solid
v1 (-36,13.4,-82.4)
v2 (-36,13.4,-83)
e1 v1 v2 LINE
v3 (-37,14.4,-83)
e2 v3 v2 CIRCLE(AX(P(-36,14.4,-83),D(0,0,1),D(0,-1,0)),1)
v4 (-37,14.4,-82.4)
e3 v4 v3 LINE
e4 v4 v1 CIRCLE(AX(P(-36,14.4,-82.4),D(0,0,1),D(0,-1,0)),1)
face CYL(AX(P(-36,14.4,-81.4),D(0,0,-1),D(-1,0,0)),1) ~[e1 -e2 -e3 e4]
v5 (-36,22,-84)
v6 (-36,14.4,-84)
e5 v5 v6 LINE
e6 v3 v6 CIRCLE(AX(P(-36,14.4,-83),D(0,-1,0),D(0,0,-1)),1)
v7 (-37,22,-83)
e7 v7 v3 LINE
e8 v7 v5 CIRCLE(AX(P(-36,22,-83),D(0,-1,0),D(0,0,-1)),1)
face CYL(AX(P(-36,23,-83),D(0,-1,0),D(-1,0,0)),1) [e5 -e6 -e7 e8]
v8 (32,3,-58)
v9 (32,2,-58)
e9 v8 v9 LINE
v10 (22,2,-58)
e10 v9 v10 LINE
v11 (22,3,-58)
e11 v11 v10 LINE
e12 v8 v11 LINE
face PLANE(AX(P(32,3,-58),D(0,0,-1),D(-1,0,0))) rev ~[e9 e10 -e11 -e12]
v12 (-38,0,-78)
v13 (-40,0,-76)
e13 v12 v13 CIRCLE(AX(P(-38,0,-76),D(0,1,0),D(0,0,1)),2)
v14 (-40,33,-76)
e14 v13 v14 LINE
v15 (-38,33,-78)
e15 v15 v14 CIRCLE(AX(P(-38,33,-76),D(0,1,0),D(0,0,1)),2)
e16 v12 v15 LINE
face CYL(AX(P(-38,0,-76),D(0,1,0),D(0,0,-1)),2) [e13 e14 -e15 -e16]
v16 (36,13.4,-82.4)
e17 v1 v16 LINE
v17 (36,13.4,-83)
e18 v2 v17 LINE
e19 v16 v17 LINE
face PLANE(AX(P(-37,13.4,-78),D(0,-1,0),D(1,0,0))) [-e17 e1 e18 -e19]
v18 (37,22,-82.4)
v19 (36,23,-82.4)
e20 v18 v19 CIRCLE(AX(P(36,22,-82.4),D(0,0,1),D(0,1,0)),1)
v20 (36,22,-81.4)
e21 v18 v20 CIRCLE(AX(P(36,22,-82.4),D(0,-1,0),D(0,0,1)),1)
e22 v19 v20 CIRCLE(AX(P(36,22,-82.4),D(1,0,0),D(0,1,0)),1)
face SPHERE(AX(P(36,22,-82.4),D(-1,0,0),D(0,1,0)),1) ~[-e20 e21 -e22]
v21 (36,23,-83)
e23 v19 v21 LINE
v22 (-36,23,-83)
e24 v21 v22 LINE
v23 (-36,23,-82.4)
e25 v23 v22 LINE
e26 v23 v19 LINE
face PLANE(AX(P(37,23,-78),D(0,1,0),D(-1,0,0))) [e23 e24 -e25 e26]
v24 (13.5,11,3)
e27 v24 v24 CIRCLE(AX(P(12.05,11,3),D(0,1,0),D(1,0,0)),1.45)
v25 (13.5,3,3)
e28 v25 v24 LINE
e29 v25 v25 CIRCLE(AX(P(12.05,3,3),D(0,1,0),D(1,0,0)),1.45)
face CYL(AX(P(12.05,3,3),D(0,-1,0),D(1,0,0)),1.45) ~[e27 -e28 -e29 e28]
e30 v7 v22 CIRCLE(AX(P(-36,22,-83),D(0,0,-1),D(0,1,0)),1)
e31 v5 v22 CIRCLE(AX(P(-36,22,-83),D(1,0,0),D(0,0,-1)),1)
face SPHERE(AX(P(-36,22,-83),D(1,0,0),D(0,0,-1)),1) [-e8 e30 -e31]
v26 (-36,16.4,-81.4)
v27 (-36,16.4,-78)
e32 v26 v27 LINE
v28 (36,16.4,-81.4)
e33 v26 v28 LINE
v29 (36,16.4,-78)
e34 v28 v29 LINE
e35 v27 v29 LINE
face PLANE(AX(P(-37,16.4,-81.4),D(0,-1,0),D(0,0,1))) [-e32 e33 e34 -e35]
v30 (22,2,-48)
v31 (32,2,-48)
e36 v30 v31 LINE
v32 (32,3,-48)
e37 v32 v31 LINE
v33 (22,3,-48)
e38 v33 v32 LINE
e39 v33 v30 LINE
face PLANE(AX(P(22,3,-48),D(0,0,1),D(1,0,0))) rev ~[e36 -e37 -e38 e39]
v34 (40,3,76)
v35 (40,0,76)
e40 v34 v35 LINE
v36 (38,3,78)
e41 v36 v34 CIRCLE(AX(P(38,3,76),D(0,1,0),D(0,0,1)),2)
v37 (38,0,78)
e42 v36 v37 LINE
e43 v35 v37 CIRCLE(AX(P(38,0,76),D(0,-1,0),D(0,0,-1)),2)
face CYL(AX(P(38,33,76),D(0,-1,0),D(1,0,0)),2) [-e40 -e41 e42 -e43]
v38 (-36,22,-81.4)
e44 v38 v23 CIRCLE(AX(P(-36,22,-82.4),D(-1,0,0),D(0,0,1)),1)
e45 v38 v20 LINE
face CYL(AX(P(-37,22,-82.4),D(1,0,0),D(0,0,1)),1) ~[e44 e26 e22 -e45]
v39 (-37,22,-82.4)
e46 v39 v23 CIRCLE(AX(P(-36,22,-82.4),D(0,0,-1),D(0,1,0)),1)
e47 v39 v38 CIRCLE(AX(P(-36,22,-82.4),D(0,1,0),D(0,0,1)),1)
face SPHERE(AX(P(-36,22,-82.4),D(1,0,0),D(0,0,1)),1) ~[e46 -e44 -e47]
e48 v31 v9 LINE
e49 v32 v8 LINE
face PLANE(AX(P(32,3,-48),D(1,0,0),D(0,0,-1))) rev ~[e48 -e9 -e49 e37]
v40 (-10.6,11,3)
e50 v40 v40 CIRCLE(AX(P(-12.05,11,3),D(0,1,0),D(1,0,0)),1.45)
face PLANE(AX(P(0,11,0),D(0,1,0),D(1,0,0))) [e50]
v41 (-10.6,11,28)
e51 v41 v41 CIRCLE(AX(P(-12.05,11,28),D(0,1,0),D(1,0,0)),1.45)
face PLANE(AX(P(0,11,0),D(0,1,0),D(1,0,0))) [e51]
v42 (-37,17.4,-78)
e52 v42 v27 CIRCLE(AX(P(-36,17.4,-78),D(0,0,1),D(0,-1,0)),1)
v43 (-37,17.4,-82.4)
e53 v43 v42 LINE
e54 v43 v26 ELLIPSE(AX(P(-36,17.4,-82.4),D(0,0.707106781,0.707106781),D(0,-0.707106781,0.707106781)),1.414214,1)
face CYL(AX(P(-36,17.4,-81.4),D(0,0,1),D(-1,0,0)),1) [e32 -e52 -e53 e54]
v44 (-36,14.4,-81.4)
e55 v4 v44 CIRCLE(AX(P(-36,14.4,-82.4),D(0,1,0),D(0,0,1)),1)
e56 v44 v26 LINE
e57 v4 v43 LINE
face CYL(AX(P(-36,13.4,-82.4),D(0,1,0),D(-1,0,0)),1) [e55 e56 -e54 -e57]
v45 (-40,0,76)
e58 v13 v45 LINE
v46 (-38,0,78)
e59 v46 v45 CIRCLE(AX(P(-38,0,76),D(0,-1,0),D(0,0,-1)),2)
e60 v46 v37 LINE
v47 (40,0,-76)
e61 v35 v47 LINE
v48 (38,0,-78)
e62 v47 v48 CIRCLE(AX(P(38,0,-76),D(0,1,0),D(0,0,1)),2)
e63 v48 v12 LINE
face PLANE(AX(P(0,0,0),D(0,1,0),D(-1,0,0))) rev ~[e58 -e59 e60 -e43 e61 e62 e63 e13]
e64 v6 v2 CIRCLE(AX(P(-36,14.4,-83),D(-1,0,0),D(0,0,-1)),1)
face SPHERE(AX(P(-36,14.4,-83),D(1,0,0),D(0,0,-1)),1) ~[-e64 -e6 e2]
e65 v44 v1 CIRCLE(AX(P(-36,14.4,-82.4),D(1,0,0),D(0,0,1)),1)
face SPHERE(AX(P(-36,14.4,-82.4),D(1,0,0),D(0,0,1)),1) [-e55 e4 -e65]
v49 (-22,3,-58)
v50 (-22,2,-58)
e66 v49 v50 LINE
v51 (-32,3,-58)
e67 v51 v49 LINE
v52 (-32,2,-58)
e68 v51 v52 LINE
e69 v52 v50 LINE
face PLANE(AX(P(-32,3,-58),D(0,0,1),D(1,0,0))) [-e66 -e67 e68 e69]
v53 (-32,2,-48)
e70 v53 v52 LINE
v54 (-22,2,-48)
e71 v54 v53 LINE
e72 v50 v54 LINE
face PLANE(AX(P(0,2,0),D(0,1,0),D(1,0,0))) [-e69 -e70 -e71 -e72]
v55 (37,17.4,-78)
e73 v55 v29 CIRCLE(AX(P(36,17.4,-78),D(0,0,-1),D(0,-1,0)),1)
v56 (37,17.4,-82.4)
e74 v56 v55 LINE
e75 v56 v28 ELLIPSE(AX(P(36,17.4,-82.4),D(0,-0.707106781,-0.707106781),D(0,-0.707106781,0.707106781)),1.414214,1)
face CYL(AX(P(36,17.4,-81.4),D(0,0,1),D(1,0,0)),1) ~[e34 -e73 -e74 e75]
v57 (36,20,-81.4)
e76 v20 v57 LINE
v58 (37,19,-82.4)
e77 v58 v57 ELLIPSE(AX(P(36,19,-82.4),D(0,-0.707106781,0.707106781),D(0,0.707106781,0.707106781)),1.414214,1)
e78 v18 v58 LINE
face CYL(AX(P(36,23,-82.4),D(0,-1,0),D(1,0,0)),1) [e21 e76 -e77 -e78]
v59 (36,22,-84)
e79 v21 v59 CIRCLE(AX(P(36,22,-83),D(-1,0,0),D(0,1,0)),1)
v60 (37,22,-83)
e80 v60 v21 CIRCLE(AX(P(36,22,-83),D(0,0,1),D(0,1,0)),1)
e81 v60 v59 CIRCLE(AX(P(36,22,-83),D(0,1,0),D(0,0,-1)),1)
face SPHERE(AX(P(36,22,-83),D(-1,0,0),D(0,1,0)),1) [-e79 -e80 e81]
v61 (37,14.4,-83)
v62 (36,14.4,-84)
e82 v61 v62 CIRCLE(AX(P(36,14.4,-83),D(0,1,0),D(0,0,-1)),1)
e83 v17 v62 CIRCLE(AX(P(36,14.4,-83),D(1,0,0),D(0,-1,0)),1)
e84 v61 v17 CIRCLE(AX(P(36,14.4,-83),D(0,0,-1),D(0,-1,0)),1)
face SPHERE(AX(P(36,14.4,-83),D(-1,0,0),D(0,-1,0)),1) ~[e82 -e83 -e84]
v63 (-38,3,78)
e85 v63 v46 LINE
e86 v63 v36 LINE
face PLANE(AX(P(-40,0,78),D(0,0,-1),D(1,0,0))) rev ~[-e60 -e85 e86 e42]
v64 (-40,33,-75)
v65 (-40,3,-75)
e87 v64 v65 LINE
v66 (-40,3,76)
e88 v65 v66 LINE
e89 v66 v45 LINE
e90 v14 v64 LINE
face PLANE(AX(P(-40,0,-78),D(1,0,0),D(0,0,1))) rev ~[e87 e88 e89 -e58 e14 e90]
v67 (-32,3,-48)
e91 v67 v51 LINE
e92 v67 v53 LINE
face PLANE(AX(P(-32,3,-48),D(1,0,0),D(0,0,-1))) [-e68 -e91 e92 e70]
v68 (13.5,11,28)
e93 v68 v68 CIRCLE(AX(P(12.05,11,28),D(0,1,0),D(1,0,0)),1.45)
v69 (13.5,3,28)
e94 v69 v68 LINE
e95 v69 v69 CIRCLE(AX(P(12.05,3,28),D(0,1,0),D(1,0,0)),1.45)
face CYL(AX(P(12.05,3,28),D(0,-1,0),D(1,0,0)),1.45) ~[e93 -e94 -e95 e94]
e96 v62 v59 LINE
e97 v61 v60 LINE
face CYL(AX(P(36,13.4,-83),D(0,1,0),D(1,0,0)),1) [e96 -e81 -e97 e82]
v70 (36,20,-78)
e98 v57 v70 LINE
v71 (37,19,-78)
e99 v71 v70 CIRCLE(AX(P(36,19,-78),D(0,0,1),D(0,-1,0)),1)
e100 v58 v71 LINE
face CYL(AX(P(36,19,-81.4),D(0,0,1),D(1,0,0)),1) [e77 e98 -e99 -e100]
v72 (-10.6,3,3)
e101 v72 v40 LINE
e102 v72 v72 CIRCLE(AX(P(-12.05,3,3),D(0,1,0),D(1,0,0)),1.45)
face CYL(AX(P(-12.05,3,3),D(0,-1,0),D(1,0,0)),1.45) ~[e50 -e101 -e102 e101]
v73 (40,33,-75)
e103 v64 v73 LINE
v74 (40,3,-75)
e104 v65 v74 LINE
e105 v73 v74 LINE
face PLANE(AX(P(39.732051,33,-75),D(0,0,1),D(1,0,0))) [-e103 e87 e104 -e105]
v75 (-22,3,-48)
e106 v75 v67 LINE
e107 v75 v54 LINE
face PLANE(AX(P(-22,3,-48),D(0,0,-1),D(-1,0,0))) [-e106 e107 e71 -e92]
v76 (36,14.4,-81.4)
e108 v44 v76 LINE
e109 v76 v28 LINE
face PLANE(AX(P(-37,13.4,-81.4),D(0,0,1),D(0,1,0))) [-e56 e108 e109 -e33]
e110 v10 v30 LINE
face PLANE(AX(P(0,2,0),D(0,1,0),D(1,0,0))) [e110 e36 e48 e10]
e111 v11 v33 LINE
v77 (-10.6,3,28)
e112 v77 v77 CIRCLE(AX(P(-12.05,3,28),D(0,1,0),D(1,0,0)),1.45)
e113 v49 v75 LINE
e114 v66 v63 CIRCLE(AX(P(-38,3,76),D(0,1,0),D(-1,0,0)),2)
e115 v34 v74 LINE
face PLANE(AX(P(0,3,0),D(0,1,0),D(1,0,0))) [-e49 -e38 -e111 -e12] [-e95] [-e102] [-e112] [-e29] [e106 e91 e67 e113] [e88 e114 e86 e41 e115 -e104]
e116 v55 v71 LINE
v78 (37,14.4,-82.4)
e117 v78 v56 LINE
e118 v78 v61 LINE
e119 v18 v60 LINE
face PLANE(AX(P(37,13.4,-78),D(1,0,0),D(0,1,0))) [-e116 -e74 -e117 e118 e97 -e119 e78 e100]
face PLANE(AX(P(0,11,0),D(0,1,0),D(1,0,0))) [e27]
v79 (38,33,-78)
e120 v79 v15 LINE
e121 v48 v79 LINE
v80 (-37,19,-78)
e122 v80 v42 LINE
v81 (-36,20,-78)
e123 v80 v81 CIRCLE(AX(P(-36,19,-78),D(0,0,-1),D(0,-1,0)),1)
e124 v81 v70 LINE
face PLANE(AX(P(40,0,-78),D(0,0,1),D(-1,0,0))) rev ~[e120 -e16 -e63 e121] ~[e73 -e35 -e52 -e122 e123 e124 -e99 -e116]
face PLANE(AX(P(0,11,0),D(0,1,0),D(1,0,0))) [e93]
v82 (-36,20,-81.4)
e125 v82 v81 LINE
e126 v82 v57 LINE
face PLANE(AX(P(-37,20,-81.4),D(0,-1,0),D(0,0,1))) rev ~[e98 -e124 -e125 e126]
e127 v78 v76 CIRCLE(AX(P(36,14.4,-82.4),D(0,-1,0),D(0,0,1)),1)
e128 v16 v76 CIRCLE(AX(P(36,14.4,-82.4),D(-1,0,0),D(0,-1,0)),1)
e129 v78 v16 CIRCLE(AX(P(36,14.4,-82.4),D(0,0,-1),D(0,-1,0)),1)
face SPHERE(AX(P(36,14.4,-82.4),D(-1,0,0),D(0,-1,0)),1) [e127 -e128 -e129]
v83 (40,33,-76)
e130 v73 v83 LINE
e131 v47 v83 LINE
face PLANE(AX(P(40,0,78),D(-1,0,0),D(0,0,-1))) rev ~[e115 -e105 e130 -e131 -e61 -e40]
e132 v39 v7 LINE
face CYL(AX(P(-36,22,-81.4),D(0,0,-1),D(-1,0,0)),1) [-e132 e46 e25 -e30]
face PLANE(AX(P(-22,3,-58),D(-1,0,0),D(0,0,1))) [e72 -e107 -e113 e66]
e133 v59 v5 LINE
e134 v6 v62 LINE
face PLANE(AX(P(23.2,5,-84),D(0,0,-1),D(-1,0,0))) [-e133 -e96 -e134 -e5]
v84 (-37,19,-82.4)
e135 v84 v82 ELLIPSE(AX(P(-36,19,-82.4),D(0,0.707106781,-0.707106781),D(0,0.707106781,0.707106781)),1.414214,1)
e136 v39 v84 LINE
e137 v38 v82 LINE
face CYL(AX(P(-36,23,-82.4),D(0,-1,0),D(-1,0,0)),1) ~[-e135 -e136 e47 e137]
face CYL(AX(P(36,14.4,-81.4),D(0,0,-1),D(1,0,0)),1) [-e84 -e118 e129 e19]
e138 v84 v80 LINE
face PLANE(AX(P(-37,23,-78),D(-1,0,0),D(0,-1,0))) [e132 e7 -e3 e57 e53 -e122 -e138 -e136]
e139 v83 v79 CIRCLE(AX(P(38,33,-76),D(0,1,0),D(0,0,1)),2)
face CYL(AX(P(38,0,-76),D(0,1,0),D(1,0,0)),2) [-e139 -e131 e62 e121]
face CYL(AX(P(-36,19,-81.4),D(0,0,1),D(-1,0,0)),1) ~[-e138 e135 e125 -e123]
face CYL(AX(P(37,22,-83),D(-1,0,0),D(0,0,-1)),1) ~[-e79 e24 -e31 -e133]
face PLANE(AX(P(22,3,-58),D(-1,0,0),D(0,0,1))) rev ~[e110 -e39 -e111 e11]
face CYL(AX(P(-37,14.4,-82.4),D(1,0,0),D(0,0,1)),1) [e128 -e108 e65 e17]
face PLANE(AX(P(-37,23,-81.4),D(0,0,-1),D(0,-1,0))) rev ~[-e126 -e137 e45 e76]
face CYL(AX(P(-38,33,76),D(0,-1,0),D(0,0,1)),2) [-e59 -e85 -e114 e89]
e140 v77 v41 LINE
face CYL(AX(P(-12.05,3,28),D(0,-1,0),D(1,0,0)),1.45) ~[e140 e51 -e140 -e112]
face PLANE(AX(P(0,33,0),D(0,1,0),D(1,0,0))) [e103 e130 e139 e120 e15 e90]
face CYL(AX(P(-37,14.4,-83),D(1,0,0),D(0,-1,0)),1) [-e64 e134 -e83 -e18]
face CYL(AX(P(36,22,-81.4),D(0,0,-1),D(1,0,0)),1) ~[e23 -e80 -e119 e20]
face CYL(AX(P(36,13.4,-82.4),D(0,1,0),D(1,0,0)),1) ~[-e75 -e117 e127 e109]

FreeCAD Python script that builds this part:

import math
import FreeCAD as App
import Part
import Sketcher

V = App.Vector


def edges_at(feature, points):
    """Names of the edges that pass closest to the given points."""
    edges = feature.Shape.Edges
    near = lambda p: min(range(len(edges)), key=lambda i: edges[i].distToShape(Part.Vertex(*p))[0])
    return sorted({f"Edge{near(p) + 1}" for p in points})


def add_polygon(sketch, points):
    """Adds a closed chain of lines whose ends are joined by coincident constraints."""
    first, n = sketch.GeometryCount, len(points)
    for a, b in zip(points, points[1:] + points[:1]):
        sketch.addGeometry(Part.LineSegment(App.Vector(*a, 0), App.Vector(*b, 0)), False)
    for i in range(n):
        sketch.addConstraint(Sketcher.Constraint("Coincident", first + i, 2, first + (i + 1) % n, 1))

doc = App.newDocument("Part")
body = doc.addObject("PartDesign::Body", "Body")

# Sketch on XZ plane
sketch1 = body.newObject("Sketcher::SketchObject", "Sketch")
sketch1.AttachmentSupport = (doc.getObject("XZ_Plane"), [""])
sketch1.MapMode = "FlatFace"
add_polygon(sketch1, [(40, 78), (40, -78), (-40, -78), (-40, 78)])  # lines 0-3
sketch1.addConstraint([
    Sketcher.Constraint("Vertical", 0),
    Sketcher.Constraint("Horizontal", 1),
    Sketcher.Constraint("Vertical", 2),
    Sketcher.Constraint("Horizontal", 3),
    Sketcher.Constraint("Symmetric", 0, 2, 2, 2, -1, 1),
    Sketcher.Constraint("DistanceX", 1, 2, 1, 1, 80.0),
    Sketcher.Constraint("DistanceY", 0, 2, 0, 1, 156.0),
])
pad1 = body.newObject("PartDesign::Pad", "Pad")
pad1.Profile = sketch1
pad1.Length = 3
pad1.Reversed = True

# Sketch on XZ plane
sketch2 = body.newObject("Sketcher::SketchObject", "Sketch001")
sketch2.AttachmentSupport = (doc.getObject("XZ_Plane"), [""])
sketch2.MapMode = "FlatFace"
sketch2.AttachmentOffset = App.Placement(V(0, 0, -3), App.Rotation())
add_polygon(sketch2, [(40, -78), (-40, -78), (-40, 78), (40, 78)])  # lines 0-3
add_polygon(sketch2, [(-37, -75), (37, -75), (37, 75), (-37, 75)])  # lines 4-7
sketch2.addConstraint([
    Sketcher.Constraint("Horizontal", 0),
    Sketcher.Constraint("Vertical", 1),
    Sketcher.Constraint("Horizontal", 2),
    Sketcher.Constraint("Vertical", 3),
    Sketcher.Constraint("Horizontal", 4),
    Sketcher.Constraint("Vertical", 5),
    Sketcher.Constraint("Horizontal", 6),
    Sketcher.Constraint("Vertical", 7),
    Sketcher.Constraint("Symmetric", 0, 2, 2, 2, -1, 1),
    Sketcher.Constraint("Symmetric", 4, 2, 6, 2, -1, 1),
    Sketcher.Constraint("DistanceX", 4, 2, 3, 2, 3.0),
    Sketcher.Constraint("DistanceY", 3, 2, 4, 2, 3.0),
    Sketcher.Constraint("DistanceX", 0, 2, 0, 1, 80.0),
    Sketcher.Constraint("DistanceY", 1, 1, 1, 2, 156.0),
])
pad2 = body.newObject("PartDesign::Pad", "Pad001")
pad2.Profile = sketch2
pad2.Length = 30
pad2.Reversed = True
doc.recompute()

fillet = body.newObject("PartDesign::Fillet", "Fillet")
fillet.Base = (pad2, edges_at(pad2, [
    (40, 16.5, 78),
    (40, 16.5, -78),
    (-40, 16.5, 78),
    (-40, 16.5, -78),
]))
fillet.Radius = 2

# Sketch on XY plane
sketch3 = body.newObject("Sketcher::SketchObject", "Sketch002")
sketch3.AttachmentSupport = (doc.getObject("XY_Plane"), [""])
sketch3.MapMode = "FlatFace"
sketch3.AttachmentOffset = App.Placement(V(0, 0, -78), App.Rotation())
add_polygon(sketch3, [(-37, 23), (37, 23), (37, 13), (-37, 13)])  # lines 0-3
sketch3.addConstraint([
    Sketcher.Constraint("Horizontal", 0),
    Sketcher.Constraint("Vertical", 1),
    Sketcher.Constraint("Horizontal", 2),
    Sketcher.Constraint("Vertical", 3),
    Sketcher.Constraint("DistanceY", 1, 2, 1, 1, 9.6),
    Sketcher.Constraint("DistanceY", -1, 1, 0, 2, 23.0),
    Sketcher.Constraint("DistanceX", 0, 1, 0, 2, 74.0),
    Sketcher.Constraint("DistanceX", -1, 1, 0, 2, 37.0),
])
pad3 = body.newObject("PartDesign::Pad", "Pad002")
pad3.Profile = sketch3
pad3.Length = 6
pad3.Reversed = True

# Sketch on YZ plane
sketch4 = body.newObject("Sketcher::SketchObject", "Sketch003")
sketch4.AttachmentSupport = (doc.getObject("YZ_Plane"), [""])
sketch4.MapMode = "FlatFace"
sketch4.AttachmentOffset = App.Placement(V(0, 0, -37), App.Rotation())
add_polygon(sketch4, [(20, -78), (23, -78), (23, -81.4), (20, -81.4)])  # lines 0-3
add_polygon(sketch4, [(13.4, -78), (16.4, -78), (16.4, -81.4), (13.4, -81.4)])  # lines 4-7
sketch4.addConstraint([
    Sketcher.Constraint("Horizontal", 0),
    Sketcher.Constraint("Vertical", 1),
    Sketcher.Constraint("Horizontal", 2),
    Sketcher.Constraint("Vertical", 3),
    Sketcher.Constraint("Horizontal", 4),
    Sketcher.Constraint("Vertical", 5),
    Sketcher.Constraint("Horizontal", 6),
    Sketcher.Constraint("Vertical", 7),
    Sketcher.Constraint("Horizontal", 3, 2, 4, 2),
    Sketcher.Constraint("Horizontal", 2, 2, 5, 2),
    Sketcher.Constraint("Equal", 2, 4),
    Sketcher.Constraint("DistanceX", 0, 1, 0, 2, 3.0),
    Sketcher.Constraint("DistanceY", 1, 2, 1, 1, 3.4),
    Sketcher.Constraint("DistanceX", -1, 1, 0, 2, 23.0),
    Sketcher.Constraint("DistanceY", 0, 2, -1, 1, 78.0),
    Sketcher.Constraint("DistanceX", -1, 1, 4, 2, 16.4),
])
pocket1 = body.newObject("PartDesign::Pocket", "Pocket")
pocket1.Profile = sketch4
pocket1.Length = 74
pocket1.Reversed = True
doc.recompute()

fillet2 = body.newObject("PartDesign::Fillet", "Fillet001")
fillet2.Base = (pocket1, edges_at(pocket1, [
    (0, 23, -84),
    (0, 23, -81.4),
    (0, 13.4, -84),
    (0, 13.4, -81.4),
    (-37, 16.4, -79.7),
    (-37, 20, -79.7),
    (37, 16.4, -79.7),
    (37, 20, -79.7),
    (-37, 18.2, -84),
    (-37, 21.5, -81.4),
    (-37, 14.9, -81.4),
    (-37, 23, -82.7),
    (-37, 13.4, -82.7),
    (37, 23, -82.7),
    (37, 13.4, -82.7),
    (37, 14.9, -81.4),
    (37, 18.2, -84),
    (37, 21.5, -81.4),
]))
fillet2.Radius = 1

# Sketch on XZ plane
sketch5 = body.newObject("Sketcher::SketchObject", "Sketch004")
sketch5.AttachmentSupport = (doc.getObject("XZ_Plane"), [""])
sketch5.MapMode = "FlatFace"
sketch5.AttachmentOffset = App.Placement(V(0, 0, -33), App.Rotation())
sketch5.addGeometry([
    Part.LineSegment(V(-40, -75, 0), V(-40, 76, 0)),  # 0
    Part.ArcOfCircle(Part.Circle(V(-38, 76, 0), V(0, 0, 1), 2), math.radians(90), math.radians(180)),  # 1
    Part.LineSegment(V(-38, 78, 0), V(38, 78, 0)),  # 2
    Part.ArcOfCircle(Part.Circle(V(38, 76, 0), V(0, 0, 1), 2), math.radians(0), math.radians(90)),  # 3
    Part.LineSegment(V(40, 76, 0), V(40, -75, 0)),  # 4
    Part.LineSegment(V(40, -75, 0), V(37, -75, 0)),  # 5
    Part.LineSegment(V(37, -75, 0), V(37, 75, 0)),  # 6
    Part.LineSegment(V(37, 75, 0), V(-37, 75, 0)),  # 7
    Part.LineSegment(V(-37, 75, 0), V(-37, -75, 0)),  # 8
    Part.LineSegment(V(-37, -75, 0), V(-40, -75, 0)),  # 9
], False)
sketch5.addConstraint([
    Sketcher.Constraint("Tangent", 0, 2, 1, 2),
    Sketcher.Constraint("Tangent", 1, 1, 2, 1),
    Sketcher.Constraint("Tangent", 2, 2, 3, 2),
    Sketcher.Constraint("Tangent", 3, 1, 4, 1),
    Sketcher.Constraint("Coincident", 4, 2, 5, 1),
    Sketcher.Constraint("Coincident", 5, 2, 6, 1),
    Sketcher.Constraint("Coincident", 6, 2, 7, 1),
    Sketcher.Constraint("Coincident", 7, 2, 8, 1),
    Sketcher.Constraint("Coincident", 8, 2, 9, 1),
    Sketcher.Constraint("Coincident", 9, 2, 0, 1),
    Sketcher.Constraint("Vertical", 0),
    Sketcher.Constraint("Horizontal", 2),
    Sketcher.Constraint("Vertical", 4),
    Sketcher.Constraint("Horizontal", 5),
    Sketcher.Constraint("Vertical", 6),
    Sketcher.Constraint("Horizontal", 7),
    Sketcher.Constraint("Vertical", 8),
    Sketcher.Constraint("Horizontal", 9),
    Sketcher.Constraint("Equal", 1, 3),
    Sketcher.Constraint("Symmetric", 5, 2, 7, 2, -1, 1),
    Sketcher.Constraint("Symmetric", 4, 2, 9, 2, -2),
    Sketcher.Constraint("Radius", 1, 2.0),
    Sketcher.Constraint("DistanceX", 2, 1, 2, 2, 76.0),
    Sketcher.Constraint("DistanceX", 5, 2, 5, 1, 3.0),
    Sketcher.Constraint("DistanceY", 0, 1, 0, 2, 151.0),
    Sketcher.Constraint("DistanceY", 6, 1, 6, 2, 150.0),
])
pocket2 = body.newObject("PartDesign::Pocket", "Pocket001")
pocket2.Profile = sketch5
pocket2.Length = 30
pocket2.Reversed = True

# Sketch on XZ plane
sketch6 = body.newObject("Sketcher::SketchObject", "Sketch005")
sketch6.AttachmentSupport = (doc.getObject("XZ_Plane"), [""])
sketch6.MapMode = "FlatFace"
sketch6.AttachmentOffset = App.Placement(V(0, 0, -3), App.Rotation())
add_polygon(sketch6, [(32, -48), (32, -58), (22, -58), (22, -48)])  # lines 0-3
add_polygon(sketch6, [(-32, -48), (-22, -48), (-22, -58), (-32, -58)])  # lines 4-7
sketch6.addConstraint([
    Sketcher.Constraint("Vertical", 0),
    Sketcher.Constraint("Horizontal", 1),
    Sketcher.Constraint("Vertical", 2),
    Sketcher.Constraint("Horizontal", 3),
    Sketcher.Constraint("Horizontal", 4),
    Sketcher.Constraint("Vertical", 5),
    Sketcher.Constraint("Horizontal", 6),
    Sketcher.Constraint("Vertical", 7),
    Sketcher.Constraint("Symmetric", 2, 2, 4, 2, -2),
    Sketcher.Constraint("Symmetric", 0, 2, 6, 2, -2),
    Sketcher.Constraint("Equal", 6, 0),
    Sketcher.Constraint("DistanceX", 1, 2, 1, 1, 10.0),
    Sketcher.Constraint("DistanceX", -1, 1, 0, 2, 32.0),
    Sketcher.Constraint("DistanceY", 0, 2, -1, 1, 58.0),
])
pocket3 = body.newObject("PartDesign::Pocket", "Pocket002")
pocket3.Profile = sketch6
pocket3.Length = 1
pocket3.Reversed = True

# Sketch on XZ plane
sketch7 = body.newObject("Sketcher::SketchObject", "Sketch006")
sketch7.AttachmentSupport = (doc.getObject("XZ_Plane"), [""])
sketch7.MapMode = "FlatFace"
sketch7.AttachmentOffset = App.Placement(V(0, 0, -3), App.Rotation())
sketch7.addGeometry([
    Part.Circle(V(-12.1, 3, 0), V(0, 0, 1), 1.4),
    Part.Circle(V(-12.1, 28, 0), V(0, 0, 1), 1.4),
    Part.Circle(V(12.1, 3, 0), V(0, 0, 1), 1.4),
    Part.Circle(V(12.1, 28, 0), V(0, 0, 1), 1.4),
], False)
sketch7.addConstraint([
    Sketcher.Constraint("Equal", 0, 1),
    Sketcher.Constraint("Equal", 1, 2),
    Sketcher.Constraint("Equal", 2, 3),
    Sketcher.Constraint("Symmetric", 0, 3, 2, 3, -2),
    Sketcher.Constraint("Symmetric", 1, 3, 3, 3, -2),
    Sketcher.Constraint("Vertical", 0, 3, 1, 3),
    Sketcher.Constraint("Diameter", 0, 2.9),
    Sketcher.Constraint("DistanceY", 0, 3, 1, 3, 25.0),
    Sketcher.Constraint("DistanceX", 0, 3, 2, 3, 24.1),
    Sketcher.Constraint("DistanceY", -1, 1, 0, 3, 3.0),
])
pad4 = body.newObject("PartDesign::Pad", "Pad003")
pad4.Profile = sketch7
pad4.Length = 8
pad4.Reversed = True

doc.recompute()
